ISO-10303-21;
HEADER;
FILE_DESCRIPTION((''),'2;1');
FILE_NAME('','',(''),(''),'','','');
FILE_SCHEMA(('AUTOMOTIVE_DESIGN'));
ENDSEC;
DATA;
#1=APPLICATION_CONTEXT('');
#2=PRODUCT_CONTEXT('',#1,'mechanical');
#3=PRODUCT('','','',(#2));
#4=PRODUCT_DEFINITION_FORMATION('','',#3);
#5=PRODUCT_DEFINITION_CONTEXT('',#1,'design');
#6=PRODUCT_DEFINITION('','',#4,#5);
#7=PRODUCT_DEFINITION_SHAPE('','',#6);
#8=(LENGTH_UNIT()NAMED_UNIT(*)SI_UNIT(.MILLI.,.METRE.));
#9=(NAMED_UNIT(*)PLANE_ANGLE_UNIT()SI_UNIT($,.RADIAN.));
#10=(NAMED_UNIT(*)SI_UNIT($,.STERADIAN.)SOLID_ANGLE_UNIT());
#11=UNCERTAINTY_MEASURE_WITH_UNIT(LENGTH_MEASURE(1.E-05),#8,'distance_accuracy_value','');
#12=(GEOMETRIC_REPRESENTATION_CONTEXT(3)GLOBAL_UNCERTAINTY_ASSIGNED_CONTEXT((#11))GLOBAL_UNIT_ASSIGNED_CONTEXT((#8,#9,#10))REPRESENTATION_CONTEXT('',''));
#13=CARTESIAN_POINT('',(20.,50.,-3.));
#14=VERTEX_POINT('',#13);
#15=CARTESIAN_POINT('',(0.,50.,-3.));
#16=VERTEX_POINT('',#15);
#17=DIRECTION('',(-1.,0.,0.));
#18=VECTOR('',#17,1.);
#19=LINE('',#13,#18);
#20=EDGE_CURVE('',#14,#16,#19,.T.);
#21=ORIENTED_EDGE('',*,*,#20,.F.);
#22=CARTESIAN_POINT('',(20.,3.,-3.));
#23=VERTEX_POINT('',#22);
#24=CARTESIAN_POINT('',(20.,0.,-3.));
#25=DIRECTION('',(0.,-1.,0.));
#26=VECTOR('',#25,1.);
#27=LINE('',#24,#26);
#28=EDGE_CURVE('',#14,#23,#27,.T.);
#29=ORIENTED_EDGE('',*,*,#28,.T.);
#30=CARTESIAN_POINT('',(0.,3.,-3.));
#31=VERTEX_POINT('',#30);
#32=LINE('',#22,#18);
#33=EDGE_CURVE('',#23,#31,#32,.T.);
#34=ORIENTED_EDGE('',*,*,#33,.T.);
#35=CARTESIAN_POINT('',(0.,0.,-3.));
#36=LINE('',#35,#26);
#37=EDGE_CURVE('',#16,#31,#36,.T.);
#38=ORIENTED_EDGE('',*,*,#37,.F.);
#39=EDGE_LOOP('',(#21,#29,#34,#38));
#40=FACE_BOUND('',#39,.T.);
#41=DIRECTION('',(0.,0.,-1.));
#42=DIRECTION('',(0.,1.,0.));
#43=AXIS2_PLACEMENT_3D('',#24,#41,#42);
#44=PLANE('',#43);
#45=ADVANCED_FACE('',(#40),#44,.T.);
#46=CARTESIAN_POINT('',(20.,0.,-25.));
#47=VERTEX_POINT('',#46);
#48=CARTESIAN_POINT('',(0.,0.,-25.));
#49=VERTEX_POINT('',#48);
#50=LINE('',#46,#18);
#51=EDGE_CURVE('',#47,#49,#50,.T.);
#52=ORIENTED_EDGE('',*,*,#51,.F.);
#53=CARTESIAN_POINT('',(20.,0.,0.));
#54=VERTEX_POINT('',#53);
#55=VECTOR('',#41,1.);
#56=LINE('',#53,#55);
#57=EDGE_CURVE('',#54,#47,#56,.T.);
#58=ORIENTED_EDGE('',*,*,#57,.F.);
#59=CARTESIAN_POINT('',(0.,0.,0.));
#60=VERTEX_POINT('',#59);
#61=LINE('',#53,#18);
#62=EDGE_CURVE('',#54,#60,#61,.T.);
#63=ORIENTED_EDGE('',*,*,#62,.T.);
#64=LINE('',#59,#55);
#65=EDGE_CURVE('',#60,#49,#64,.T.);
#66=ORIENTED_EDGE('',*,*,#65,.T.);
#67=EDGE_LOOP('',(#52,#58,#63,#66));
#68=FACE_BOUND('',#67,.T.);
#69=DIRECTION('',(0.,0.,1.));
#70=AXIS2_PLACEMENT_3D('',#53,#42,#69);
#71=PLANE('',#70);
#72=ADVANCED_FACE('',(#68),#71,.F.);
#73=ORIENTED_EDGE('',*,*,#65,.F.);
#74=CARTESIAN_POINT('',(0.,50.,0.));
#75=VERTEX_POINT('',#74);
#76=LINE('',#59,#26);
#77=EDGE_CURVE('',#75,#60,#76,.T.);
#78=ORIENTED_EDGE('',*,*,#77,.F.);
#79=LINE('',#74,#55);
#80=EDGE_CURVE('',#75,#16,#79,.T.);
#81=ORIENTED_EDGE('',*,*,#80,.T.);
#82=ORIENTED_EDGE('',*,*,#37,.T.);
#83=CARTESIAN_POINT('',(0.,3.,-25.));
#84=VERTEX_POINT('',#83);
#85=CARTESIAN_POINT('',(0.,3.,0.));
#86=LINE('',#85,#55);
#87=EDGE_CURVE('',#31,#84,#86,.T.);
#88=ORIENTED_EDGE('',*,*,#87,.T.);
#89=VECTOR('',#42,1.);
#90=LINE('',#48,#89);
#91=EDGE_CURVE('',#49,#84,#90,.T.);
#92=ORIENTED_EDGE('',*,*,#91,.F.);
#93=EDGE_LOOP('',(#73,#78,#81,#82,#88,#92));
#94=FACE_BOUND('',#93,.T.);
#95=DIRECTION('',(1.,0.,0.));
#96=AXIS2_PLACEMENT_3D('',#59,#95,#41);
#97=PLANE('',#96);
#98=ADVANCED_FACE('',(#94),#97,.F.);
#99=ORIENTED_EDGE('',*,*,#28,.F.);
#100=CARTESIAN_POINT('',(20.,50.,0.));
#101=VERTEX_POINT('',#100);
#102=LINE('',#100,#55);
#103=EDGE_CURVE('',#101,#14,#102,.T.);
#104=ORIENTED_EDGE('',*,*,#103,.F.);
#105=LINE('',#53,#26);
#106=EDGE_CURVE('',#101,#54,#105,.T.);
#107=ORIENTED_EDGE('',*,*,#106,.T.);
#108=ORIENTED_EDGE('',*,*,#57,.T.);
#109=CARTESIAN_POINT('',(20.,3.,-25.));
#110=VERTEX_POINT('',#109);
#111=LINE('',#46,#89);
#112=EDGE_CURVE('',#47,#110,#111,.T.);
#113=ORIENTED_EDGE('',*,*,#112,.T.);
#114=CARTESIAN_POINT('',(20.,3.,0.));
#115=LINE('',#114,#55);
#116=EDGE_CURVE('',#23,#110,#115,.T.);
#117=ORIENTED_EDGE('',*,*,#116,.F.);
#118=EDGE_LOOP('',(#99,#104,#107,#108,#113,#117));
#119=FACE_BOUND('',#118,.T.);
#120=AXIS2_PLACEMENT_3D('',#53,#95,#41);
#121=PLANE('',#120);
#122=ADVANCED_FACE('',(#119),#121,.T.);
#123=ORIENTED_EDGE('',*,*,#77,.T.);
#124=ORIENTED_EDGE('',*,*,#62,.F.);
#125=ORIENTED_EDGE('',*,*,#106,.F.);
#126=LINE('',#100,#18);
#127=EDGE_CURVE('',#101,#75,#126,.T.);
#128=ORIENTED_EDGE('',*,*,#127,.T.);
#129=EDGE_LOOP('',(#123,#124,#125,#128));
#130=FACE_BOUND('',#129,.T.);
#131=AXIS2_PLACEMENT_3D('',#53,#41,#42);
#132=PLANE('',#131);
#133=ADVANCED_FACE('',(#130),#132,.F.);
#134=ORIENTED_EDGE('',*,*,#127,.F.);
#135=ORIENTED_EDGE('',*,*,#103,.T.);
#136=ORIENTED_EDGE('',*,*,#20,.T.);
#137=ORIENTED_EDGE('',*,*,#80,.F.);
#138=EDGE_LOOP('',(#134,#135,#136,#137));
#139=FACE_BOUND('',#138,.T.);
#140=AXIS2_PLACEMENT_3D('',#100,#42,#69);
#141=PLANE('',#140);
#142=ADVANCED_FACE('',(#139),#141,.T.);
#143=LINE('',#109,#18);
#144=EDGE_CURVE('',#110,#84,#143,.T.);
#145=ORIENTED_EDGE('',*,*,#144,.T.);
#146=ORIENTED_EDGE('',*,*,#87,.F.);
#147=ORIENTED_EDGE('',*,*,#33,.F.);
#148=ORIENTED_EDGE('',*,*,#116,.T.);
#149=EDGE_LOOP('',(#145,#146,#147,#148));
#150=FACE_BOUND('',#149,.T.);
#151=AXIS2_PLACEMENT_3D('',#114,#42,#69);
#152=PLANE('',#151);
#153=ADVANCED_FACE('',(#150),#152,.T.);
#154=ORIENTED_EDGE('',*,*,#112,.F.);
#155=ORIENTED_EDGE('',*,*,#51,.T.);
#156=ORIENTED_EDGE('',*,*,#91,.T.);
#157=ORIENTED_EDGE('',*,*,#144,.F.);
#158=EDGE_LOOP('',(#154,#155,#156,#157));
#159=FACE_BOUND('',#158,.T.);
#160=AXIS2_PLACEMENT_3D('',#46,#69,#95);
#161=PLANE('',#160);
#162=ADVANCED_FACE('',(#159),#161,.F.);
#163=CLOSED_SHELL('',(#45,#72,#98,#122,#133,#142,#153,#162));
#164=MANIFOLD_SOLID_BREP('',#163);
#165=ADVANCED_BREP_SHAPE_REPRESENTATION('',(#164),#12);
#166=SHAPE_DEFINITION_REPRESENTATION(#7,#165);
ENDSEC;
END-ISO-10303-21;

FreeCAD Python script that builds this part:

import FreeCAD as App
import Part
import Sketcher

V = App.Vector
Q = App.Units.Quantity


def add_polygon(sketch, points):
    """Adds a closed chain of lines whose ends are joined by coincident constraints."""
    first, n = sketch.GeometryCount, len(points)
    for a, b in zip(points, points[1:] + points[:1]):
        sketch.addGeometry(Part.LineSegment(App.Vector(*a, 0), App.Vector(*b, 0)), False)
    for i in range(n):
        sketch.addConstraint(Sketcher.Constraint("Coincident", first + i, 2, first + (i + 1) % n, 1))

doc = App.newDocument("Part")
body = doc.addObject("PartDesign::Body", "Body")

sketch1 = body.newObject("Sketcher::SketchObject", "Sketch")
sketch1.AttachmentSupport = (doc.getObject("YZ_Plane"), [""])
sketch1.MapMode = "FlatFace"
add_polygon(sketch1, [(50, 0), (0, 0), (0, -25), (3, -25), (3, -3), (50, -3)])
sketch1.addConstraint(Sketcher.Constraint("Horizontal", 0))
sketch1.addConstraint(Sketcher.Constraint("Vertical", 1))
sketch1.addConstraint(Sketcher.Constraint("Horizontal", 2))
sketch1.addConstraint(Sketcher.Constraint("Vertical", 3))
sketch1.addConstraint(Sketcher.Constraint("Horizontal", 4))
sketch1.addConstraint(Sketcher.Constraint("Vertical", 5))
sketch1.addConstraint(Sketcher.Constraint("Coincident", 0, 2, -1, 1))
sketch1.addConstraint(Sketcher.Constraint("Equal", 2, 5))
sketch1.addConstraint(Sketcher.Constraint("DistanceX", 0, 2, 0, 1, Q("50 mm")))
sketch1.addConstraint(Sketcher.Constraint("DistanceX", 2, 1, 2, 2, Q("3 mm")))
sketch1.addConstraint(Sketcher.Constraint("DistanceY", 1, 2, 1, 1, Q("25 mm")))
pad1 = body.newObject("PartDesign::Pad", "Pad")
pad1.Profile = sketch1
pad1.Length = 20

doc.recompute()
